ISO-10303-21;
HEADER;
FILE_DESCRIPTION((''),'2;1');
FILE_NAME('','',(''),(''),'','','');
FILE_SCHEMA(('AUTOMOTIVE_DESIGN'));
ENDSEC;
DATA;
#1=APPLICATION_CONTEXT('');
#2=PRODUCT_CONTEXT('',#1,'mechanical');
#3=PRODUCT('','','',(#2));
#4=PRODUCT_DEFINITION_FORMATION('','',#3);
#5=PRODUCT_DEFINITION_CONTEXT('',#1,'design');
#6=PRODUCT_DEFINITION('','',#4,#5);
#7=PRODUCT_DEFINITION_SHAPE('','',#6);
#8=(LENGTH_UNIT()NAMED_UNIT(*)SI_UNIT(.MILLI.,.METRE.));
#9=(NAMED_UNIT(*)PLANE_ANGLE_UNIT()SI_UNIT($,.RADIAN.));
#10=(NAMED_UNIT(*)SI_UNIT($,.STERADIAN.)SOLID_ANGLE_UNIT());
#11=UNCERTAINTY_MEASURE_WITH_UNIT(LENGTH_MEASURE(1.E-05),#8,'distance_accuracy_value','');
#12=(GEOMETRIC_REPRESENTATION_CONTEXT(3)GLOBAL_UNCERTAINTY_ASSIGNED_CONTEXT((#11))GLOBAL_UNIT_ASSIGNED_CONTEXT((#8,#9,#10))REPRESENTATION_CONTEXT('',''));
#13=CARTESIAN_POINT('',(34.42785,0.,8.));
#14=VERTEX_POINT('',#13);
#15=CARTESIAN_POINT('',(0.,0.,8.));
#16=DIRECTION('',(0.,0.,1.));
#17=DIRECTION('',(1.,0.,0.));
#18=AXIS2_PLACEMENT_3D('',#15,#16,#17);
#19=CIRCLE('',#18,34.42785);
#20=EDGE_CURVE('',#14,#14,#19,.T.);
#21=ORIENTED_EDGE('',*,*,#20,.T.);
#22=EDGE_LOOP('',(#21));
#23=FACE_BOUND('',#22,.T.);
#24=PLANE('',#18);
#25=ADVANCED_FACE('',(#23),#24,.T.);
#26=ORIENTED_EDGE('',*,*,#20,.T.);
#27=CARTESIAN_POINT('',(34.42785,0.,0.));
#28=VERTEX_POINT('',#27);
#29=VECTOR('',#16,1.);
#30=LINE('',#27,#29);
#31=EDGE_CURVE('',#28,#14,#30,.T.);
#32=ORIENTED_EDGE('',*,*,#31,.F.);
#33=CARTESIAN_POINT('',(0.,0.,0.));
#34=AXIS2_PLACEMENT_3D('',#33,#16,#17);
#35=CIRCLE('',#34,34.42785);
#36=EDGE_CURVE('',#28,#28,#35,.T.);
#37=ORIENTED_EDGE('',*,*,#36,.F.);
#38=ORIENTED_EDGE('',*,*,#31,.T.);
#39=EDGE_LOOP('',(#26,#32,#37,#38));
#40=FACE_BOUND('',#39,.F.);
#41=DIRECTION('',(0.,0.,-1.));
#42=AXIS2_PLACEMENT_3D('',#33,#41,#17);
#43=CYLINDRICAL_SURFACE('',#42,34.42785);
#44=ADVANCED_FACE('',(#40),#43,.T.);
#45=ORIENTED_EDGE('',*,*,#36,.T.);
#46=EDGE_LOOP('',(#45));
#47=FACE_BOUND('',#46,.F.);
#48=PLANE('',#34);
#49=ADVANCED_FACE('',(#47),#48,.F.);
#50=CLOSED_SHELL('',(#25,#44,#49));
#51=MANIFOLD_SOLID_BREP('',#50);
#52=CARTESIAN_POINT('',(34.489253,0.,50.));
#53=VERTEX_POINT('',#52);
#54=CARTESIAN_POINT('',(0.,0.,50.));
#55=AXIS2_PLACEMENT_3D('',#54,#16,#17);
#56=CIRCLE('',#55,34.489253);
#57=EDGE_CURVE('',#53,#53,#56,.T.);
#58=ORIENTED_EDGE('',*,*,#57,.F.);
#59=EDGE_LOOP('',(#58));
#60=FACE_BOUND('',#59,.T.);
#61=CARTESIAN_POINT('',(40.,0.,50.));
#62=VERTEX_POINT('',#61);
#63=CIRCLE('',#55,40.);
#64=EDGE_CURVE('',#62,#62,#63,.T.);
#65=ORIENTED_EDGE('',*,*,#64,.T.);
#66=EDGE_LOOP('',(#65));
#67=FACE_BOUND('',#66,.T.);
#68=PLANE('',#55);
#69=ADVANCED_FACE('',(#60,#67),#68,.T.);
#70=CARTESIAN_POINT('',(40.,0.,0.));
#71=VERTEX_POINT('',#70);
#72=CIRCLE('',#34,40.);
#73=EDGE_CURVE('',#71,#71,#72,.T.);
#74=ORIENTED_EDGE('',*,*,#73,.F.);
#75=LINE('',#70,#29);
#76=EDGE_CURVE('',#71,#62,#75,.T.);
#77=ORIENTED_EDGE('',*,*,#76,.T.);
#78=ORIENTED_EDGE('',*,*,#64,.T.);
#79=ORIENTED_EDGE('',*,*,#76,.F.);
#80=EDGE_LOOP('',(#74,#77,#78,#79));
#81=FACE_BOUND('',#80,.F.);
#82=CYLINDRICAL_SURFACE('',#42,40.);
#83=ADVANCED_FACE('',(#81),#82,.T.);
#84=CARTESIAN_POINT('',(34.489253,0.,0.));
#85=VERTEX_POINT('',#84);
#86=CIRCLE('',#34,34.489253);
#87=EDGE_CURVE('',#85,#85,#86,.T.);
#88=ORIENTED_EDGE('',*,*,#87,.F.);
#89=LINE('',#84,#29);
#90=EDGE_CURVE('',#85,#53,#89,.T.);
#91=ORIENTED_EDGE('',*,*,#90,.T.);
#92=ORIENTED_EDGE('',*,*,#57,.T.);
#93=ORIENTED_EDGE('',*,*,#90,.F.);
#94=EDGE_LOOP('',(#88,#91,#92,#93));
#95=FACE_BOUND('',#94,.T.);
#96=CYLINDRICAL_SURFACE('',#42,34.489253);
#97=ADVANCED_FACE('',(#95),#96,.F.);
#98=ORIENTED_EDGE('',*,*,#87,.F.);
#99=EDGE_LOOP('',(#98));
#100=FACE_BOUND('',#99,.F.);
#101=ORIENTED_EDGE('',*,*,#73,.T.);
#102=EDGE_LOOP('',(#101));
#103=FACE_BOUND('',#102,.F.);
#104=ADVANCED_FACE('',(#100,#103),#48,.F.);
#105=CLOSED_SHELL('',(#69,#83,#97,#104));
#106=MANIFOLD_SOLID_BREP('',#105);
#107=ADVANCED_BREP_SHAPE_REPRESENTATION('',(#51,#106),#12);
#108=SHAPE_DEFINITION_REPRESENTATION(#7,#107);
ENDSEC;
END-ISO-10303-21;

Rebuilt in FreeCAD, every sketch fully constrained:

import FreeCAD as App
import Part
import Sketcher
from FreeCAD import Vector
Q = App.Units.Quantity

doc = App.newDocument("Part")
body = doc.addObject("PartDesign::Body", "Body")

sketch1 = body.newObject("Sketcher::SketchObject", "Sketch")
sketch1.AttachmentSupport = (doc.getObject("XY_Plane"), [""])
sketch1.MapMode = "FlatFace"
sketch1.addGeometry(Part.Circle(Vector(0, 0, 0), Vector(0, 0, 1), 40), False)
sketch1.addGeometry(Part.Circle(Vector(0, 0, 0), Vector(0, 0, 1), 34), False)
sketch1.addConstraint(Sketcher.Constraint("Coincident", 0, 3, -1, 1))
sketch1.addConstraint(Sketcher.Constraint("Coincident", 1, 3, -1, 1))
sketch1.addConstraint(Sketcher.Constraint("Diameter", 0, Q("80 mm")))
sketch1.addConstraint(Sketcher.Constraint("Diameter", 1, Q("68.978506 mm")))
pad1 = body.newObject("PartDesign::Pad", "Pad")
pad1.Profile = sketch1
pad1.Length = 50
body2 = doc.addObject("PartDesign::Body", "Body001")

sketch2 = body2.newObject("Sketcher::SketchObject", "Sketch001")
sketch2.AttachmentSupport = (doc.getObject("XY_Plane001"), [""])
sketch2.MapMode = "FlatFace"
sketch2.addGeometry(Part.Circle(Vector(0, 0, 0), Vector(0, 0, 1), 34), False)
sketch2.addConstraint(Sketcher.Constraint("Coincident", 0, 3, -1, 1))
sketch2.addConstraint(Sketcher.Constraint("Diameter", 0, Q("68.8557 mm")))
pad2 = body2.newObject("PartDesign::Pad", "Pad001")
pad2.Profile = sketch2
pad2.Length = 8

doc.recompute()
